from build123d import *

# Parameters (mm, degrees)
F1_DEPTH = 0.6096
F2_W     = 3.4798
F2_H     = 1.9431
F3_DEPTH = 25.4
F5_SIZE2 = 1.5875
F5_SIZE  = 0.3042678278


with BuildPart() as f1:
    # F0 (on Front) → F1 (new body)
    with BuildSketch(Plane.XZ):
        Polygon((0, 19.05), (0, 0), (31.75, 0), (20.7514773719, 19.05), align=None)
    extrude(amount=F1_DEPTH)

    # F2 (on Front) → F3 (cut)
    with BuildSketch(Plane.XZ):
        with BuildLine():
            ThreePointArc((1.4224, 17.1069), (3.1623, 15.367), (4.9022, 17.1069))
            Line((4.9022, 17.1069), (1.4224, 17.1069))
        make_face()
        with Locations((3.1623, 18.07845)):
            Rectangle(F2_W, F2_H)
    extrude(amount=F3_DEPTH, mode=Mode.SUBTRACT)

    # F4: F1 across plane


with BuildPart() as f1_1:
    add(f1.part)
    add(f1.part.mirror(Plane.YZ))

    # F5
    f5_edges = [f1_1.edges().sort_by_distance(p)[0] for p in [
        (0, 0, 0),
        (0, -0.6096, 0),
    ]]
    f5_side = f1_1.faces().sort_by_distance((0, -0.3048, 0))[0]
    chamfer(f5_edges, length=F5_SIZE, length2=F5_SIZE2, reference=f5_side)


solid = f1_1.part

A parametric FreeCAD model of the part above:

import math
import FreeCAD as App
import Part
import Sketcher
Q = App.Units.Quantity


def edges_at(feature, points):
    """Names of the edges that pass closest to the given points."""
    edges = feature.Shape.Edges
    near = lambda p: min(range(len(edges)), key=lambda i: edges[i].distToShape(Part.Vertex(*p))[0])
    return sorted({f"Edge{near(p) + 1}" for p in points})

doc = App.newDocument("Part")
params = doc.addObject("Spreadsheet::Sheet", "Params")
for row, (alias, value) in enumerate([
    ("sketch1_width", "1.25 in"),
    ("sketch1_height", "0.75 in"),
    ("pad1_length", "0.024 in"),
    ("pocket1_length", "1 in"),
    ("chamfer_size", "0.304268 mm"),
    ("chamfer_size2", "0.0625 in"),
], start=1):
    params.set(f"A{row}", alias)
    params.set(f"B{row}", "=" + value)
    params.setAlias(f"B{row}", alias)

body = doc.addObject("PartDesign::Body", "Body")

sketch1 = doc.addObject("Sketcher::SketchObject", "Sketch")
body.addObject(sketch1)
sketch1.AttachmentSupport = (doc.XZ_Plane, [""])
sketch1.MapMode = "FlatFace"
sketch1.addGeometry([
    Part.LineSegment(App.Vector(0, 19.05, 0), App.Vector(0, 0, 0)),
    Part.LineSegment(App.Vector(0, 0, 0), App.Vector(31.75, 0, 0)),
    Part.LineSegment(App.Vector(31.75, 0, 0), App.Vector(20.751477, 19.05, 0)),
    Part.LineSegment(App.Vector(20.751477, 19.05, 0), App.Vector(0, 19.05, 0)),
], False)
sketch1.addConstraint([
    Sketcher.Constraint("Coincident", 0, 2, 1, 1),
    Sketcher.Constraint("Coincident", 1, 2, 2, 1),
    Sketcher.Constraint("Coincident", 2, 2, 3, 1),
    Sketcher.Constraint("Coincident", 3, 2, 0, 1),
    Sketcher.Constraint("Vertical", 0),
    Sketcher.Constraint("Horizontal", 1),
    Sketcher.Constraint("Horizontal", 3),
    Sketcher.Constraint("Coincident", 0, 2, -1, 1),
    Sketcher.Constraint("Angle", 2, Q("120 deg")),
    Sketcher.Constraint("DistanceX", 1, 1, 1, 2, Q("1.25 in")),
    Sketcher.Constraint("DistanceY", 0, 2, 0, 1, Q("0.75 in")),
])
sketch1.setExpression("Constraints[9]", "Params.sketch1_width")
sketch1.setExpression("Constraints[10]", "Params.sketch1_height")
pad1 = doc.addObject("PartDesign::Pad", "Pad")
body.addObject(pad1)
pad1.Profile = sketch1
pad1.setExpression("Length", "Params.pad1_length")

sketch2 = doc.addObject("Sketcher::SketchObject", "Sketch001")
body.addObject(sketch2)
sketch2.AttachmentSupport = (doc.XZ_Plane, [""])
sketch2.MapMode = "FlatFace"
sketch2.addGeometry([
    Part.ArcOfCircle(Part.Circle(App.Vector(3.1623, 17.1069, 0), App.Vector(0, 0, 1), 1.7399), math.radians(180), math.radians(360)),
    Part.LineSegment(App.Vector(4.9022, 17.1069, 0), App.Vector(4.9022, 19.05, 0)),
    Part.LineSegment(App.Vector(4.9022, 19.05, 0), App.Vector(1.4224, 19.05, 0)),
    Part.LineSegment(App.Vector(1.4224, 19.05, 0), App.Vector(1.4224, 17.1069, 0)),
], False)
sketch2.addConstraint([
    Sketcher.Constraint("Tangent", 0, 2, 1, 1),
    Sketcher.Constraint("Coincident", 1, 2, 2, 1),
    Sketcher.Constraint("Coincident", 2, 2, 3, 1),
    Sketcher.Constraint("Tangent", 3, 2, 0, 1),
    Sketcher.Constraint("Vertical", 1),
    Sketcher.Constraint("Horizontal", 2),
    Sketcher.Constraint("Vertical", 3),
    Sketcher.Constraint("Radius", 0, Q("0.0685 in")),
    Sketcher.Constraint("DistanceY", -1, 1, 1, 2, Q("0.75 in")),
    Sketcher.Constraint("DistanceY", 1, 1, 1, 2, Q("0.0765 in")),
    Sketcher.Constraint("DistanceX", -1, 1, 0, 2, Q("0.193 in")),
])
pocket1 = doc.addObject("PartDesign::Pocket", "Pocket")
body.addObject(pocket1)
pocket1.Profile = sketch2
pocket1.setExpression("Length", "Params.pocket1_length")
pocket1.Reversed = True
body2 = doc.addObject("PartDesign::Body", "Body001")
doc.recompute()

body2.BaseFeature = body
doc.recompute()

mirroring = doc.addObject("Part::Mirroring", "Mirroring")
mirroring.Source = body
mirroring.Base = App.Vector(0, 0, 0)
mirroring.Normal = App.Vector(1, 0, 0)
body3 = doc.addObject("PartDesign::Body", "Body002")
body3.BaseFeature = mirroring
boolean = doc.addObject("PartDesign::Boolean", "Boolean")
body2.addObject(boolean)
boolean.Type = "Fuse"
boolean.addObjects([body3])
doc.recompute()

chamfer = doc.addObject("PartDesign::Chamfer", "Chamfer")
body2.addObject(chamfer)
chamfer.Base = (boolean, edges_at(boolean, [(0, 0, 0), (0, -0.61, 0)]))
chamfer.ChamferType = "Two distances"
chamfer.setExpression("Size", "Params.chamfer_size")
chamfer.setExpression("Size2", "Params.chamfer_size2")
chamfer.FlipDirection = True
mirroring.Visibility = False

doc.recompute()
